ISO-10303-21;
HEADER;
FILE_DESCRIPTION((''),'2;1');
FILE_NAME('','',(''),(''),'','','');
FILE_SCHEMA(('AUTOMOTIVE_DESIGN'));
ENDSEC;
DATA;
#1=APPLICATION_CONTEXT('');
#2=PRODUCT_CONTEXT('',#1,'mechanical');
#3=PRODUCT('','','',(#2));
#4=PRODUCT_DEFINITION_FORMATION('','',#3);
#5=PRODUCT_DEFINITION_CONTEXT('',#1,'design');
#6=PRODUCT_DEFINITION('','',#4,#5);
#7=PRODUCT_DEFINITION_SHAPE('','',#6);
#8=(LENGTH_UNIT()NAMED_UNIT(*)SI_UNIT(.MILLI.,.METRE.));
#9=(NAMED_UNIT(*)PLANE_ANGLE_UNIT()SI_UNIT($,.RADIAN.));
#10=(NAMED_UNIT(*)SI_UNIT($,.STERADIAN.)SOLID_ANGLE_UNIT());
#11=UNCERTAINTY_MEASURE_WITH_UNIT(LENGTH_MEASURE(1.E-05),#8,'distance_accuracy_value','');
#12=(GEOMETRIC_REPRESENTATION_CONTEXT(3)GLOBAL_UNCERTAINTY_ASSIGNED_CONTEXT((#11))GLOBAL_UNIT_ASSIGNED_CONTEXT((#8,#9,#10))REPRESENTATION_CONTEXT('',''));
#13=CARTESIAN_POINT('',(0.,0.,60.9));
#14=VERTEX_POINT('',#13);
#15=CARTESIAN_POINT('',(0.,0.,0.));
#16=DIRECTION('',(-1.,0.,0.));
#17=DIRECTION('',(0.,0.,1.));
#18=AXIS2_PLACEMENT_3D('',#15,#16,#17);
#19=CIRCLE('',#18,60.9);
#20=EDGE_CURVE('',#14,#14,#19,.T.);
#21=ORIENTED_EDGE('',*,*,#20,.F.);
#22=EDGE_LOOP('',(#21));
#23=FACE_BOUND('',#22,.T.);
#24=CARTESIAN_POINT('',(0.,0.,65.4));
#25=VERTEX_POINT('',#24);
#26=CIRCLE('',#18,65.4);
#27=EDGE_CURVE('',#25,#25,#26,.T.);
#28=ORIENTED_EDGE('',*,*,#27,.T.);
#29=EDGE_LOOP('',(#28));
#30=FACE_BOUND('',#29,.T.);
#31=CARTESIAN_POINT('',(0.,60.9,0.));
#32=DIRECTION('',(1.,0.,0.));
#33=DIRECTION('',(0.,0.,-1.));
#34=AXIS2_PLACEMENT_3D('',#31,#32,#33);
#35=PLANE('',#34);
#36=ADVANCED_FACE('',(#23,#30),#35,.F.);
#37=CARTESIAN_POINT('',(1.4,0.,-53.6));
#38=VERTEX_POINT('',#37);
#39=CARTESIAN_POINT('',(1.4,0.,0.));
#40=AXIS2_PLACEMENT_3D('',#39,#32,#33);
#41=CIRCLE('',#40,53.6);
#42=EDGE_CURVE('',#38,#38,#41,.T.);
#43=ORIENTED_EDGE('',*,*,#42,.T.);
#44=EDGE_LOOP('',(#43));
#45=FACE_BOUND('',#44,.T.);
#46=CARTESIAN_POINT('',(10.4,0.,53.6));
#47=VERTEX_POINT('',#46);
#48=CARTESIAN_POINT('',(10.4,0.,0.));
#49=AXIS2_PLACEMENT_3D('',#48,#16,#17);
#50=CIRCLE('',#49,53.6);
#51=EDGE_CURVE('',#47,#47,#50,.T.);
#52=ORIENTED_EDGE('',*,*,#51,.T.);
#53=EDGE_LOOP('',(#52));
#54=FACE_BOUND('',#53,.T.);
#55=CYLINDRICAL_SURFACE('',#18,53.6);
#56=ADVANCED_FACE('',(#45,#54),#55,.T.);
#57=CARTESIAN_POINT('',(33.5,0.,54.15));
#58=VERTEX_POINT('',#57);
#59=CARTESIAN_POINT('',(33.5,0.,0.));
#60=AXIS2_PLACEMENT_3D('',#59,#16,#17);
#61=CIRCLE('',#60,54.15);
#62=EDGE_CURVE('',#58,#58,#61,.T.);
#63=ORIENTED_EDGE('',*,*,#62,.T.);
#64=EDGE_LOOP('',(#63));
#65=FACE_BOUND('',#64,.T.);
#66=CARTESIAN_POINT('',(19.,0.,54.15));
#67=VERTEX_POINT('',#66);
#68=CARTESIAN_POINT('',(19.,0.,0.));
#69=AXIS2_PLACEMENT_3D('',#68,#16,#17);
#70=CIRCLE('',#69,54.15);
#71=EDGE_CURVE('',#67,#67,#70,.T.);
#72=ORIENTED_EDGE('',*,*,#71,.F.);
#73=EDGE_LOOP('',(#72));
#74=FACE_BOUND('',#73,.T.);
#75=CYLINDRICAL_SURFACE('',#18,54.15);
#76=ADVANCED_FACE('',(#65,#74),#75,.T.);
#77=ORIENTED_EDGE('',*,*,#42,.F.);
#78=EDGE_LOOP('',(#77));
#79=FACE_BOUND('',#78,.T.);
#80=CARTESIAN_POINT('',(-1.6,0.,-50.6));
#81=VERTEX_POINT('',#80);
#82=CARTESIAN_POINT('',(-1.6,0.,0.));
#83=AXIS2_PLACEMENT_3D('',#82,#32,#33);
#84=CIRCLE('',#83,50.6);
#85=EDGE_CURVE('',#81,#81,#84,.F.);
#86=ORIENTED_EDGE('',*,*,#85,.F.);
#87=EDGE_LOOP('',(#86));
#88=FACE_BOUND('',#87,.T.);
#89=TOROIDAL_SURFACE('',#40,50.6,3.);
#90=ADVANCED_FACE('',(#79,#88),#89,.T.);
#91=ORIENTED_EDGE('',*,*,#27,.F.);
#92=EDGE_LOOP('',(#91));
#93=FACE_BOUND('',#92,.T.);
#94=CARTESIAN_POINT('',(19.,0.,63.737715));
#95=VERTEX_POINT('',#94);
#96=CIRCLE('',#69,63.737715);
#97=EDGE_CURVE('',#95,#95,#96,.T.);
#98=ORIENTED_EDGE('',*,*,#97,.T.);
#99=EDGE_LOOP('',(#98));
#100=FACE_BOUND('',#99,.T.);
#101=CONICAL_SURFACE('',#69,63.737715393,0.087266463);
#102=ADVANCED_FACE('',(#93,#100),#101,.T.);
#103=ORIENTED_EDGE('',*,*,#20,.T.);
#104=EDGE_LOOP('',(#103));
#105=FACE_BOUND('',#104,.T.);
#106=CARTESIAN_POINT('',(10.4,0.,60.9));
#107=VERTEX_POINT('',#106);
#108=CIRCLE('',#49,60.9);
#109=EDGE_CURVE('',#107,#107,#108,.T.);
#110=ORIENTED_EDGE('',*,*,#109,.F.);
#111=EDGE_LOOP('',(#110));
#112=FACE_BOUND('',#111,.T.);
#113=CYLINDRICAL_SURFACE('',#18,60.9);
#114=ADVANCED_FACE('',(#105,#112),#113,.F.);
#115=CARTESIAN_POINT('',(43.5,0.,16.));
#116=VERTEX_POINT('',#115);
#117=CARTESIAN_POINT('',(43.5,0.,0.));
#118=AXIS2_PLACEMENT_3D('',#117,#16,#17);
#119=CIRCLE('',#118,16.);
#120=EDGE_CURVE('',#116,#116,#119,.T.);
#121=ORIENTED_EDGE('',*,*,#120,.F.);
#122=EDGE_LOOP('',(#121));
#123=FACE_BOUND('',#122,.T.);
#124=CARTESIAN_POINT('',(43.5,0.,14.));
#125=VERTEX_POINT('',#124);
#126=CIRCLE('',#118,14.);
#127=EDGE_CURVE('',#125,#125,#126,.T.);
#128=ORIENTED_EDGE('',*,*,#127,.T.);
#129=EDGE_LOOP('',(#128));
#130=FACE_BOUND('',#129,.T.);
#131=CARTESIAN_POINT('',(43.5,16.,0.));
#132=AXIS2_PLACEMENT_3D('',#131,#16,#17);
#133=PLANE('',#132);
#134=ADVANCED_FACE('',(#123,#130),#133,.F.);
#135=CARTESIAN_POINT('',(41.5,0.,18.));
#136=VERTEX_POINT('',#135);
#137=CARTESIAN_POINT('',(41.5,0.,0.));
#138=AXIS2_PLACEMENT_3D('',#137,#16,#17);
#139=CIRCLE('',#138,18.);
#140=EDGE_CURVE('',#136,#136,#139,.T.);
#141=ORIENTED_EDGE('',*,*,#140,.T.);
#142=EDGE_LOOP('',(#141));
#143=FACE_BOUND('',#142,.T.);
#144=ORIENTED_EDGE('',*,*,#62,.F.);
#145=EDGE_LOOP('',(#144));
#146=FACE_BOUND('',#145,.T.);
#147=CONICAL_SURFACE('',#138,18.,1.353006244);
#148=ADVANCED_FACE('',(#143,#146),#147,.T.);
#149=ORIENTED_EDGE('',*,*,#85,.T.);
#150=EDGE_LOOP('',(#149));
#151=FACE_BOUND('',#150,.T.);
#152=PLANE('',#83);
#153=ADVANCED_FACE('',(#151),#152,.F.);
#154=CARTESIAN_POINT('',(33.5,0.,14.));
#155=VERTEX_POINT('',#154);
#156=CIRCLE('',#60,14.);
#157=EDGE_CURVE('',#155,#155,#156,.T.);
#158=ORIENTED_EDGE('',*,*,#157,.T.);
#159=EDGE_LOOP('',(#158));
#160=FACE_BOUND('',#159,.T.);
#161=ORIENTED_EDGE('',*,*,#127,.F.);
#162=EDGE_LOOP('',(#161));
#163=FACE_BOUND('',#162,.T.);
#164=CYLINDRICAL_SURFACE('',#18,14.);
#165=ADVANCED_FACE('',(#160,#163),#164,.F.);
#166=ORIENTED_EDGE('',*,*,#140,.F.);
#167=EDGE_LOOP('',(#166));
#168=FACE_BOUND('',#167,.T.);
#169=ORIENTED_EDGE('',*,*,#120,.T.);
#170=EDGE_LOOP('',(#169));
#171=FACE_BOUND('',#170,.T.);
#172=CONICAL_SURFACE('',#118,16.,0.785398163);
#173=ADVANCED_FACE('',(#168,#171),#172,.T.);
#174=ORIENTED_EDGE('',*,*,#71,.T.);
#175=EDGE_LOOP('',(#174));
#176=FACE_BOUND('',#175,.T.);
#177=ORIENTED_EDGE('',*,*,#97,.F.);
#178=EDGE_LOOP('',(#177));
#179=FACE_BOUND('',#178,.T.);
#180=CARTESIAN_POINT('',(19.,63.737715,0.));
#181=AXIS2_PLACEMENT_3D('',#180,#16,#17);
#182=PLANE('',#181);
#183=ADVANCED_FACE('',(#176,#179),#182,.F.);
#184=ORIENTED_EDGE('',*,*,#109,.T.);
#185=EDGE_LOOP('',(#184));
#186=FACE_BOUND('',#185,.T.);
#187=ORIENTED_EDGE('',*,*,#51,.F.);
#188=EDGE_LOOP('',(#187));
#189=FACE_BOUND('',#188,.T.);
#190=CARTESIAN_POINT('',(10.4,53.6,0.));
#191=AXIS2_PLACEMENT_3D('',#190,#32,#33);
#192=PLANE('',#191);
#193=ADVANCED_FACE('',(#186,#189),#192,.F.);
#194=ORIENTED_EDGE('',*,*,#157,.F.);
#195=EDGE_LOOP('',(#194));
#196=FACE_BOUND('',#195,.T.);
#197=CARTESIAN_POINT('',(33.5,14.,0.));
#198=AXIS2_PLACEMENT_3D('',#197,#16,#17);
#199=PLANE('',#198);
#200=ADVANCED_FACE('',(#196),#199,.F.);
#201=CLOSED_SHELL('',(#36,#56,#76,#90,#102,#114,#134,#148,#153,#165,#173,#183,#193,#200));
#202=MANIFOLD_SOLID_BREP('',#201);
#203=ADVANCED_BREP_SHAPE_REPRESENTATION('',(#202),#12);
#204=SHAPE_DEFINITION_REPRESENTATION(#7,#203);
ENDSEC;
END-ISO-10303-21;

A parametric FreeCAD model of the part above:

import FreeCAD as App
import Part
import Sketcher
Q = App.Units.Quantity


def edges_at(feature, points):
    """Names of the edges that pass closest to the given points."""
    edges = feature.Shape.Edges
    near = lambda p: min(range(len(edges)), key=lambda i: edges[i].distToShape(Part.Vertex(*p))[0])
    return sorted({f"Edge{near(p) + 1}" for p in points})


def add_polygon(sketch, points):
    """Adds a closed chain of lines whose ends are joined by coincident constraints."""
    first, n = sketch.GeometryCount, len(points)
    for a, b in zip(points, points[1:] + points[:1]):
        sketch.addGeometry(Part.LineSegment(App.Vector(*a, 0), App.Vector(*b, 0)), False)
    for i in range(n):
        sketch.addConstraint(Sketcher.Constraint("Coincident", first + i, 2, first + (i + 1) % n, 1))

doc = App.newDocument("Part")
body = doc.addObject("PartDesign::Body", "Body")

# Sketch on XY plane
sketch1 = body.newObject("Sketcher::SketchObject", "Sketch")
sketch1.AttachmentSupport = (doc.getObject("XY_Plane"), [""])
sketch1.MapMode = "FlatFace"
add_polygon(sketch1, [(19, 63.7), (0, 65.4), (0, 60.9), (10.4, 60.9), (10.4, 53.6), (-1.6, 53.6), (-1.6, 0), (33.5, 0), (33.5, 14), (43.5, 14), (43.5, 16), (41.5, 18), (33.5, 54.1), (19, 54.1)])  # lines 0-13
sketch1.addConstraint([
    Sketcher.Constraint("Vertical", 1),
    Sketcher.Constraint("Horizontal", 2),
    Sketcher.Constraint("Vertical", 3),
    Sketcher.Constraint("Horizontal", 4),
    Sketcher.Constraint("Vertical", 5),
    Sketcher.Constraint("Horizontal", 6),
    Sketcher.Constraint("Vertical", 7),
    Sketcher.Constraint("Horizontal", 8),
    Sketcher.Constraint("Vertical", 9),
    Sketcher.Constraint("Horizontal", 12),
    Sketcher.Constraint("Vertical", 13),
    Sketcher.Constraint("PointOnObject", 0, 2, -2),
    Sketcher.Constraint("PointOnObject", 5, 2, -1),
    Sketcher.Constraint("Vertical", 7, 2, 11, 2),
    Sketcher.Constraint("DistanceX", 4, 2, 4, 1, Q("12 mm")),
    Sketcher.Constraint("DistanceX", 8, 1, 8, 2, Q("10 mm")),
    Sketcher.Constraint("DistanceY", 7, 1, 7, 2, Q("14 mm")),
    Sketcher.Constraint("DistanceY", 9, 1, 9, 2, Q("2 mm")),
    Sketcher.Constraint("Angle", 0, Q("175 deg")),
    Sketcher.Constraint("Angle", 10, Q("135 deg")),
    Sketcher.Constraint("DistanceX", 2, 1, 2, 2, Q("10.4 mm")),
    Sketcher.Constraint("DistanceX", 6, 1, 6, 2, Q("35.1 mm")),
    Sketcher.Constraint("DistanceX", 12, 2, 12, 1, Q("14.5 mm")),
    Sketcher.Constraint("DistanceY", 1, 2, 1, 1, Q("4.5 mm")),
    Sketcher.Constraint("DistanceY", 3, 2, 3, 1, Q("7.3 mm")),
    Sketcher.Constraint("DistanceY", 5, 2, 5, 1, Q("53.6 mm")),
    Sketcher.Constraint("DistanceY", -1, 1, 10, 2, Q("18 mm")),
    Sketcher.Constraint("DistanceY", -1, 1, 11, 2, Q("54.15 mm")),
])
revolution = body.newObject("PartDesign::Revolution", "Revolution")
revolution.Profile = sketch1
revolution.ReferenceAxis = (sketch1, ["H_Axis"])
revolution.Angle = 360
doc.recompute()

fillet = body.newObject("PartDesign::Fillet", "Fillet")
fillet.Base = (revolution, edges_at(revolution, [(-1.6, -53.6, 0)]))
fillet.Radius = 3

doc.recompute()
